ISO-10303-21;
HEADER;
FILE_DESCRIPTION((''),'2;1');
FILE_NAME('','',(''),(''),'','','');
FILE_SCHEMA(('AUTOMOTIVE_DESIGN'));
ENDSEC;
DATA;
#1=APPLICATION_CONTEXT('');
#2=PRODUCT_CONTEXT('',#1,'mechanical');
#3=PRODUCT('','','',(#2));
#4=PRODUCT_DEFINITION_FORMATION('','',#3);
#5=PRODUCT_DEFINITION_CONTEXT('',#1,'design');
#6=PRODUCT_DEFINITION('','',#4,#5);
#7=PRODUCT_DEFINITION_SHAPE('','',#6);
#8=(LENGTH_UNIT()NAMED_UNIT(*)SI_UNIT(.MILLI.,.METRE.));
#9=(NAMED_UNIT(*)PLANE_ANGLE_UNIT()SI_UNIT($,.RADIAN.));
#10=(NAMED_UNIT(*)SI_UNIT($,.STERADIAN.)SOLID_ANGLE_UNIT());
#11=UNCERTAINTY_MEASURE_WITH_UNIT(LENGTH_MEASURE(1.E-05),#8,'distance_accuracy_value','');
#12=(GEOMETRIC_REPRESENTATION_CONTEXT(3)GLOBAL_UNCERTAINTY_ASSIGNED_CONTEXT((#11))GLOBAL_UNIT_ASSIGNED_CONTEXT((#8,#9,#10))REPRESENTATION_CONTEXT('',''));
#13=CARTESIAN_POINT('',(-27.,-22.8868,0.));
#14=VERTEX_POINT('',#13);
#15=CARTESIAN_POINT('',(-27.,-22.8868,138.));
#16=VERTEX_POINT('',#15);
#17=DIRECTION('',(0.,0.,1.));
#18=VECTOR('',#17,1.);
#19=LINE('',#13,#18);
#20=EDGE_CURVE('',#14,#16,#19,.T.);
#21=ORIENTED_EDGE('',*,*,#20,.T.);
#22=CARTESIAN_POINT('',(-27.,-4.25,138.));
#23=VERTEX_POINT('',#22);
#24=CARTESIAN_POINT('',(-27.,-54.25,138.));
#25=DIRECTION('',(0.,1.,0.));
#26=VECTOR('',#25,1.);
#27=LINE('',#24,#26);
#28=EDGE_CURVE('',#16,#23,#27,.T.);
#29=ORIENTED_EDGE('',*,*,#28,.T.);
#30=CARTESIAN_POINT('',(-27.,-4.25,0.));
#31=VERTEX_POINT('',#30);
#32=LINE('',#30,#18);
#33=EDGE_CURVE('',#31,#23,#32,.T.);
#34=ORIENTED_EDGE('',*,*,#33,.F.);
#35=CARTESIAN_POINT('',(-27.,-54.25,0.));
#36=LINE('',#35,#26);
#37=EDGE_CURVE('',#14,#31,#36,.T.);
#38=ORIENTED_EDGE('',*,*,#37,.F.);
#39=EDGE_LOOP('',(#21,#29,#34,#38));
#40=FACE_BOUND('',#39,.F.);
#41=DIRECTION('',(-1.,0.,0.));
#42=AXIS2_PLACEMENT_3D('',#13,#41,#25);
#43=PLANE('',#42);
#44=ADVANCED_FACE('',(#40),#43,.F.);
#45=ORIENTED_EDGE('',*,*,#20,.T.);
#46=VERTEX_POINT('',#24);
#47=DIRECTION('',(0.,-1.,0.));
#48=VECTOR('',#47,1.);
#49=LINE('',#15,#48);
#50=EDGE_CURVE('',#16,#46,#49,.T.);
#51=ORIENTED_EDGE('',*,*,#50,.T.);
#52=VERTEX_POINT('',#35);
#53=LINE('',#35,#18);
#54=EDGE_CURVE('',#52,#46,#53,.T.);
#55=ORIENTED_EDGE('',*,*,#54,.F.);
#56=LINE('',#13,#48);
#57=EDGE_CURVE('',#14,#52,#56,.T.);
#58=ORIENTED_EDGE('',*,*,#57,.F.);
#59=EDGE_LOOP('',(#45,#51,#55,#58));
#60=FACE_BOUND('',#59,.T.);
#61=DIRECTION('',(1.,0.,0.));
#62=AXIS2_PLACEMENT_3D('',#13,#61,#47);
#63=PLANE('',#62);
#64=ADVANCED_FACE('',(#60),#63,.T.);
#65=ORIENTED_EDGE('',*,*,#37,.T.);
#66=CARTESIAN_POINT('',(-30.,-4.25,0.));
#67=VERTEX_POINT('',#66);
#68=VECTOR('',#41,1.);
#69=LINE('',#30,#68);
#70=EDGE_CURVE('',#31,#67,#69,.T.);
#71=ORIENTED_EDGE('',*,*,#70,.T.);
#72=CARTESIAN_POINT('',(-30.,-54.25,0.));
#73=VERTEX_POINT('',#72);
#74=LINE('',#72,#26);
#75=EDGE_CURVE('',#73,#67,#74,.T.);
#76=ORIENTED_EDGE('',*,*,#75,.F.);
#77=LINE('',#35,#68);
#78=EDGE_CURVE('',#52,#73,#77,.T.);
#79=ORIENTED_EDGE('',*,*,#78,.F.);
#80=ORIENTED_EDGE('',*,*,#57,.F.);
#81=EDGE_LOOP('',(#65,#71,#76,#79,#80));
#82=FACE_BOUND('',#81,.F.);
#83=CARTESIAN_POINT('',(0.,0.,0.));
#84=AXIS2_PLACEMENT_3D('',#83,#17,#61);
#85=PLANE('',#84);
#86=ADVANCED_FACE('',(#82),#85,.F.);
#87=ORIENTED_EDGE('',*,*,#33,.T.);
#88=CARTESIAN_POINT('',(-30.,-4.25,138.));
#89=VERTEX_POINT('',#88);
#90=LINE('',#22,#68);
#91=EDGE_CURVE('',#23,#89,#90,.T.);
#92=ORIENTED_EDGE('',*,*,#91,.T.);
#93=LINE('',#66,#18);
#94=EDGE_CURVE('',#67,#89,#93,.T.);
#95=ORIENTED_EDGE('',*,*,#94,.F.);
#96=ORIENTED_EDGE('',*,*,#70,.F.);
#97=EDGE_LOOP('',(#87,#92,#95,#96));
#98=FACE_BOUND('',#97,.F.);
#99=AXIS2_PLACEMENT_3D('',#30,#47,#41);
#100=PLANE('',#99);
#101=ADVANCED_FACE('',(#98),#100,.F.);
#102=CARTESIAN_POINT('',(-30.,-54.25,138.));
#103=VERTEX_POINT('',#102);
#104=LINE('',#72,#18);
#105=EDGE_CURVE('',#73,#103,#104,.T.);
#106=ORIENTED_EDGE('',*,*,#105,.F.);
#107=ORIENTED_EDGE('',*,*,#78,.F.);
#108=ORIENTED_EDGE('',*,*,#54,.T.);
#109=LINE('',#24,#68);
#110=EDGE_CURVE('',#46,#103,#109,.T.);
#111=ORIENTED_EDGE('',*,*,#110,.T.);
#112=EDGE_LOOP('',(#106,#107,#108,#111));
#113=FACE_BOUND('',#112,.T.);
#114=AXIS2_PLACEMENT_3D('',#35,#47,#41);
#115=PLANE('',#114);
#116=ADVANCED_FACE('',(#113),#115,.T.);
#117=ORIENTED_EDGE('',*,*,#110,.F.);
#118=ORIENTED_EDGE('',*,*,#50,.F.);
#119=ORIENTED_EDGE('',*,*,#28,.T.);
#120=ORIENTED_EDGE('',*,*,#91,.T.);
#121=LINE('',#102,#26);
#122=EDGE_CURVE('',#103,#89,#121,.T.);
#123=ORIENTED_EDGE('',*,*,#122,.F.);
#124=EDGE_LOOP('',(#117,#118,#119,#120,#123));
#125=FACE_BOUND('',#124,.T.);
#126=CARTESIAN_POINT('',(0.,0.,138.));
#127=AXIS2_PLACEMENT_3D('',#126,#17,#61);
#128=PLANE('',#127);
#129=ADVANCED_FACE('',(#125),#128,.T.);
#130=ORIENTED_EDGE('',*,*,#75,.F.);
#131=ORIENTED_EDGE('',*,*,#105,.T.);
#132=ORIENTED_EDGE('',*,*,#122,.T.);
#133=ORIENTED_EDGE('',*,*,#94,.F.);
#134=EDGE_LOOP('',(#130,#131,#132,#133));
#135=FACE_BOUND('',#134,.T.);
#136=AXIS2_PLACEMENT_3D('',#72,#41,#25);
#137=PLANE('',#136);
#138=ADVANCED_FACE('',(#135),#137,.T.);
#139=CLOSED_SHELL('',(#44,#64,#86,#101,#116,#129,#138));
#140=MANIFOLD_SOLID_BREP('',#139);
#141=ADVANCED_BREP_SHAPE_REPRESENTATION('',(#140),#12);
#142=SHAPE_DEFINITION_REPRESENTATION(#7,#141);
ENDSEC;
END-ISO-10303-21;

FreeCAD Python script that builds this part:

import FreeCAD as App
import Part
import Sketcher
from FreeCAD import Vector
Q = App.Units.Quantity

doc = App.newDocument("Part")
body = doc.addObject("PartDesign::Body", "Body")

sketch1 = body.newObject("Sketcher::SketchObject", "Sketch")
sketch1.AttachmentSupport = (doc.getObject("XY_Plane"), [""])
sketch1.MapMode = "FlatFace"
sketch1.addGeometry([
    Part.LineSegment(Vector(-27, -4.2, 0), Vector(-30, -4.2, 0)),
    Part.LineSegment(Vector(-30, -4.2, 0), Vector(-30, -54.2, 0)),
    Part.LineSegment(Vector(-30, -54.2, 0), Vector(-27, -54.2, 0)),
    Part.LineSegment(Vector(-27, -54.2, 0), Vector(-27, -4.2, 0)),
], False)
sketch1.addConstraint([
    Sketcher.Constraint("Coincident", 0, 2, 1, 1),
    Sketcher.Constraint("Coincident", 1, 2, 2, 1),
    Sketcher.Constraint("Coincident", 2, 2, 3, 1),
    Sketcher.Constraint("Coincident", 3, 2, 0, 1),
    Sketcher.Constraint("Horizontal", 0),
    Sketcher.Constraint("Vertical", 1),
    Sketcher.Constraint("Horizontal", 2),
    Sketcher.Constraint("Vertical", 3),
    Sketcher.Constraint("DistanceY", 1, 2, 1, 1, Q("50 mm")),
    Sketcher.Constraint("DistanceX", 0, 2, 0, 1, Q("3 mm")),
    Sketcher.Constraint("DistanceX", 0, 2, -1, 1, Q("30 mm")),
    Sketcher.Constraint("DistanceY", 0, 2, -1, 1, Q("4.25 mm")),
])
pad1 = body.newObject("PartDesign::Pad", "Pad")
pad1.Profile = sketch1
pad1.Length = 138

doc.recompute()
